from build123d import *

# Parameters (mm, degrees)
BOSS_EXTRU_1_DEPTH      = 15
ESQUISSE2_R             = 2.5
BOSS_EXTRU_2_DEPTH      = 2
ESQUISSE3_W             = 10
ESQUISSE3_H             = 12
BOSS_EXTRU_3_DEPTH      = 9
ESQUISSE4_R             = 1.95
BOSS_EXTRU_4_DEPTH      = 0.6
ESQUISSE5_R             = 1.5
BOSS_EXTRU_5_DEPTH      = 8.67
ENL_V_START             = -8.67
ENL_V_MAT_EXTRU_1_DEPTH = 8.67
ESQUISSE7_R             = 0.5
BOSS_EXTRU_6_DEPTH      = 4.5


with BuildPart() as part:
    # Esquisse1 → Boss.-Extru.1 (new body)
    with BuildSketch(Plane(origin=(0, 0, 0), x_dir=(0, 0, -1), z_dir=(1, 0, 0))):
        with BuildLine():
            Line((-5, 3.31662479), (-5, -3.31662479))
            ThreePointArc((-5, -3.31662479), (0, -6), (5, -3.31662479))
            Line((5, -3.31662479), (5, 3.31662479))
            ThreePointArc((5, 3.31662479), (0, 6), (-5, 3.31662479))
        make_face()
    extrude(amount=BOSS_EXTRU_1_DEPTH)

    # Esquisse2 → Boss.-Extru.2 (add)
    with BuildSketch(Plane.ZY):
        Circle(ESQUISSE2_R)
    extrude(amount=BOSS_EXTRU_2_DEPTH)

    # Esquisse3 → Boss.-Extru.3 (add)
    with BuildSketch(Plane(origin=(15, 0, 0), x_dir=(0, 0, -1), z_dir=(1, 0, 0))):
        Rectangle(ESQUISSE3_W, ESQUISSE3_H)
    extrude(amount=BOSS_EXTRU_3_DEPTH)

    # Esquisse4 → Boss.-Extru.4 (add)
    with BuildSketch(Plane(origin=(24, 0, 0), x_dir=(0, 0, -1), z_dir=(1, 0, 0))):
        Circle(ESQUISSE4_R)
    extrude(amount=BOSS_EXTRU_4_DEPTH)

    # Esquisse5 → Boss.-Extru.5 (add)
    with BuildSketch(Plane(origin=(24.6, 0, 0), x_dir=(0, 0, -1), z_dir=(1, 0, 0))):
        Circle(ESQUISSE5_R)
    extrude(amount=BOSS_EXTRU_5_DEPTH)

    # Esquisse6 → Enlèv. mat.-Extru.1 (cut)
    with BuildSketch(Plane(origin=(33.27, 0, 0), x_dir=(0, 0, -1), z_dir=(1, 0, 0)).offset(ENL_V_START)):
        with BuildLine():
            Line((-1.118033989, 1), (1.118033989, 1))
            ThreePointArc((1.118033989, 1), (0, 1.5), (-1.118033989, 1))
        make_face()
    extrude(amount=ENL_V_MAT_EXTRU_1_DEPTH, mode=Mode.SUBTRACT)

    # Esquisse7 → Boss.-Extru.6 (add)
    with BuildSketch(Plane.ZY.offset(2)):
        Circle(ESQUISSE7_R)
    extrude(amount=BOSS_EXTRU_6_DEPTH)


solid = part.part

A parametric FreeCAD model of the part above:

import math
import FreeCAD as App
import Part
import Sketcher
from FreeCAD import Vector

doc = App.newDocument("Part")
params = doc.addObject("Spreadsheet::Sheet", "Params")
for row, (alias, value) in enumerate([
    ("sketch1_radius", "6 mm"),
    ("pad1_length", "15 mm"),
    ("sketch2_diameter", "5 mm"),
    ("pad2_length", "2 mm"),
    ("sketch3_width", "12 mm"),
    ("sketch3_height", "10 mm"),
    ("pad3_length", "9 mm"),
    ("sketch4_diameter", "3.9 mm"),
    ("pad4_length", "0.6 mm"),
    ("sketch5_diameter", "3 mm"),
    ("pad5_length", "8.67 mm"),
    ("sketch6_radius", "1.5 mm"),
    ("pocket1_length", "8.67 mm"),
    ("sketch7_diameter", "1 mm"),
    ("pad6_length", "4.5 mm"),
], start=1):
    params.set(f"A{row}", alias)
    params.set(f"B{row}", "=" + value)
    params.setAlias(f"B{row}", alias)

body = doc.addObject("PartDesign::Body", "Body")

# Sketch on YZ plane
sketch1 = doc.addObject("Sketcher::SketchObject", "Sketch")
body.addObject(sketch1)
sketch1.AttachmentSupport = (doc.YZ_Plane, [""])
sketch1.MapMode = "FlatFace"
sketch1.addGeometry([
    Part.LineSegment(Vector(3, 5, 0), Vector(-3, 5, 0)),
    Part.ArcOfCircle(Part.Circle(Vector(0, 0, 0), Vector(0, 0, 1), 6), math.radians(124), math.radians(236)),
    Part.LineSegment(Vector(-3, -5, 0), Vector(3, -5, 0)),
    Part.ArcOfCircle(Part.Circle(Vector(0, 0, 0), Vector(0, 0, 1), 6), math.radians(-56), math.radians(56)),
], False)
sketch1.addConstraint([
    Sketcher.Constraint("Coincident", 0, 2, 1, 1),
    Sketcher.Constraint("Coincident", 1, 2, 2, 1),
    Sketcher.Constraint("Coincident", 2, 2, 3, 1),
    Sketcher.Constraint("Coincident", 3, 2, 0, 1),
    Sketcher.Constraint("Horizontal", 0),
    Sketcher.Constraint("Horizontal", 2),
    Sketcher.Constraint("Coincident", 1, 3, -1, 1),
    Sketcher.Constraint("Coincident", 3, 3, -1, 1),
    Sketcher.Constraint("Equal", 1, 3),
    Sketcher.Constraint("Vertical", 0, 2, 1, 2),
    Sketcher.Constraint("Radius", 1, 6.0),
    Sketcher.Constraint("DistanceY", -1, 1, 0, 2, 5.0),
])
sketch1.setExpression("Constraints[10]", "Params.sketch1_radius")
pad1 = doc.addObject("PartDesign::Pad", "Pad")
body.addObject(pad1)
pad1.Profile = sketch1
pad1.setExpression("Length", "Params.pad1_length")

# Sketch on YZ plane
sketch2 = doc.addObject("Sketcher::SketchObject", "Sketch001")
body.addObject(sketch2)
sketch2.AttachmentSupport = (doc.YZ_Plane, [""])
sketch2.MapMode = "FlatFace"
sketch2.addGeometry(Part.Circle(Vector(0, 0, 0), Vector(0, 0, 1), 2.5), False)
sketch2.addConstraint([
    Sketcher.Constraint("Coincident", 0, 3, -1, 1),
    Sketcher.Constraint("Diameter", 0, 5.0),
])
sketch2.setExpression("Constraints[1]", "Params.sketch2_diameter")
pad2 = doc.addObject("PartDesign::Pad", "Pad001")
body.addObject(pad2)
pad2.Profile = sketch2
pad2.setExpression("Length", "Params.pad2_length")
pad2.Reversed = True

# Sketch on YZ plane
sketch3 = doc.addObject("Sketcher::SketchObject", "Sketch002")
body.addObject(sketch3)
sketch3.AttachmentSupport = (doc.YZ_Plane, [""])
sketch3.MapMode = "FlatFace"
sketch3.AttachmentOffset = App.Placement(Vector(0, 0, 15), App.Rotation())
sketch3.addGeometry([
    Part.LineSegment(Vector(6, 5, 0), Vector(-6, 5, 0)),
    Part.LineSegment(Vector(-6, 5, 0), Vector(-6, -5, 0)),
    Part.LineSegment(Vector(-6, -5, 0), Vector(6, -5, 0)),
    Part.LineSegment(Vector(6, -5, 0), Vector(6, 5, 0)),
], False)
sketch3.addConstraint([
    Sketcher.Constraint("Coincident", 0, 2, 1, 1),
    Sketcher.Constraint("Coincident", 1, 2, 2, 1),
    Sketcher.Constraint("Coincident", 2, 2, 3, 1),
    Sketcher.Constraint("Coincident", 3, 2, 0, 1),
    Sketcher.Constraint("Horizontal", 0),
    Sketcher.Constraint("Vertical", 1),
    Sketcher.Constraint("Horizontal", 2),
    Sketcher.Constraint("Vertical", 3),
    Sketcher.Constraint("Symmetric", 0, 2, 2, 2, -1, 1),
    Sketcher.Constraint("DistanceX", 0, 2, 0, 1, 12.0),
    Sketcher.Constraint("DistanceY", 1, 2, 1, 1, 10.0),
])
sketch3.setExpression("Constraints[9]", "Params.sketch3_width")
sketch3.setExpression("Constraints[10]", "Params.sketch3_height")
pad3 = doc.addObject("PartDesign::Pad", "Pad002")
body.addObject(pad3)
pad3.Profile = sketch3
pad3.setExpression("Length", "Params.pad3_length")

# Sketch on YZ plane
sketch4 = doc.addObject("Sketcher::SketchObject", "Sketch003")
body.addObject(sketch4)
sketch4.AttachmentSupport = (doc.YZ_Plane, [""])
sketch4.MapMode = "FlatFace"
sketch4.AttachmentOffset = App.Placement(Vector(0, 0, 24), App.Rotation())
sketch4.addGeometry(Part.Circle(Vector(0, 0, 0), Vector(0, 0, 1), 1.9), False)
sketch4.addConstraint([
    Sketcher.Constraint("Coincident", 0, 3, -1, 1),
    Sketcher.Constraint("Diameter", 0, 3.9),
])
sketch4.setExpression("Constraints[1]", "Params.sketch4_diameter")
pad4 = doc.addObject("PartDesign::Pad", "Pad003")
body.addObject(pad4)
pad4.Profile = sketch4
pad4.setExpression("Length", "Params.pad4_length")

# Sketch on YZ plane
sketch5 = doc.addObject("Sketcher::SketchObject", "Sketch004")
body.addObject(sketch5)
sketch5.AttachmentSupport = (doc.YZ_Plane, [""])
sketch5.MapMode = "FlatFace"
sketch5.AttachmentOffset = App.Placement(Vector(0, 0, 24.6), App.Rotation())
sketch5.addGeometry(Part.Circle(Vector(0, 0, 0), Vector(0, 0, 1), 1.5), False)
sketch5.addConstraint([
    Sketcher.Constraint("Coincident", 0, 3, -1, 1),
    Sketcher.Constraint("Diameter", 0, 3.0),
])
sketch5.setExpression("Constraints[1]", "Params.sketch5_diameter")
pad5 = doc.addObject("PartDesign::Pad", "Pad004")
body.addObject(pad5)
pad5.Profile = sketch5
pad5.setExpression("Length", "Params.pad5_length")

# Sketch on YZ plane
sketch6 = doc.addObject("Sketcher::SketchObject", "Sketch005")
body.addObject(sketch6)
sketch6.AttachmentSupport = (doc.YZ_Plane, [""])
sketch6.MapMode = "FlatFace"
sketch6.AttachmentOffset = App.Placement(Vector(0, 0, 24.6), App.Rotation())
sketch6.addGeometry([
    Part.LineSegment(Vector(1, 1.1, 0), Vector(1, -1.1, 0)),
    Part.ArcOfCircle(Part.Circle(Vector(0, 0, 0), Vector(0, 0, 1), 1.5), math.radians(-48), math.radians(48)),
], False)
sketch6.addConstraint([
    Sketcher.Constraint("Coincident", 0, 1, 1, 2),
    Sketcher.Constraint("Coincident", 1, 1, 0, 2),
    Sketcher.Constraint("Vertical", 0),
    Sketcher.Constraint("Coincident", 1, 3, -1, 1),
    Sketcher.Constraint("Radius", 1, 1.5),
    Sketcher.Constraint("DistanceX", -1, 1, 0, 1, 1.0),
])
sketch6.setExpression("Constraints[4]", "Params.sketch6_radius")
pocket1 = doc.addObject("PartDesign::Pocket", "Pocket")
body.addObject(pocket1)
pocket1.Profile = sketch6
pocket1.setExpression("Length", "Params.pocket1_length")
pocket1.Reversed = True

# Sketch on YZ plane
sketch7 = doc.addObject("Sketcher::SketchObject", "Sketch006")
body.addObject(sketch7)
sketch7.AttachmentSupport = (doc.YZ_Plane, [""])
sketch7.MapMode = "FlatFace"
sketch7.AttachmentOffset = App.Placement(Vector(0, 0, -2), App.Rotation())
sketch7.addGeometry(Part.Circle(Vector(0, 0, 0), Vector(0, 0, 1), 0.5), False)
sketch7.addConstraint([
    Sketcher.Constraint("Coincident", 0, 3, -1, 1),
    Sketcher.Constraint("Diameter", 0, 1.0),
])
sketch7.setExpression("Constraints[1]", "Params.sketch7_diameter")
pad6 = doc.addObject("PartDesign::Pad", "Pad005")
body.addObject(pad6)
pad6.Profile = sketch7
pad6.setExpression("Length", "Params.pad6_length")
pad6.Reversed = True

doc.recompute()
